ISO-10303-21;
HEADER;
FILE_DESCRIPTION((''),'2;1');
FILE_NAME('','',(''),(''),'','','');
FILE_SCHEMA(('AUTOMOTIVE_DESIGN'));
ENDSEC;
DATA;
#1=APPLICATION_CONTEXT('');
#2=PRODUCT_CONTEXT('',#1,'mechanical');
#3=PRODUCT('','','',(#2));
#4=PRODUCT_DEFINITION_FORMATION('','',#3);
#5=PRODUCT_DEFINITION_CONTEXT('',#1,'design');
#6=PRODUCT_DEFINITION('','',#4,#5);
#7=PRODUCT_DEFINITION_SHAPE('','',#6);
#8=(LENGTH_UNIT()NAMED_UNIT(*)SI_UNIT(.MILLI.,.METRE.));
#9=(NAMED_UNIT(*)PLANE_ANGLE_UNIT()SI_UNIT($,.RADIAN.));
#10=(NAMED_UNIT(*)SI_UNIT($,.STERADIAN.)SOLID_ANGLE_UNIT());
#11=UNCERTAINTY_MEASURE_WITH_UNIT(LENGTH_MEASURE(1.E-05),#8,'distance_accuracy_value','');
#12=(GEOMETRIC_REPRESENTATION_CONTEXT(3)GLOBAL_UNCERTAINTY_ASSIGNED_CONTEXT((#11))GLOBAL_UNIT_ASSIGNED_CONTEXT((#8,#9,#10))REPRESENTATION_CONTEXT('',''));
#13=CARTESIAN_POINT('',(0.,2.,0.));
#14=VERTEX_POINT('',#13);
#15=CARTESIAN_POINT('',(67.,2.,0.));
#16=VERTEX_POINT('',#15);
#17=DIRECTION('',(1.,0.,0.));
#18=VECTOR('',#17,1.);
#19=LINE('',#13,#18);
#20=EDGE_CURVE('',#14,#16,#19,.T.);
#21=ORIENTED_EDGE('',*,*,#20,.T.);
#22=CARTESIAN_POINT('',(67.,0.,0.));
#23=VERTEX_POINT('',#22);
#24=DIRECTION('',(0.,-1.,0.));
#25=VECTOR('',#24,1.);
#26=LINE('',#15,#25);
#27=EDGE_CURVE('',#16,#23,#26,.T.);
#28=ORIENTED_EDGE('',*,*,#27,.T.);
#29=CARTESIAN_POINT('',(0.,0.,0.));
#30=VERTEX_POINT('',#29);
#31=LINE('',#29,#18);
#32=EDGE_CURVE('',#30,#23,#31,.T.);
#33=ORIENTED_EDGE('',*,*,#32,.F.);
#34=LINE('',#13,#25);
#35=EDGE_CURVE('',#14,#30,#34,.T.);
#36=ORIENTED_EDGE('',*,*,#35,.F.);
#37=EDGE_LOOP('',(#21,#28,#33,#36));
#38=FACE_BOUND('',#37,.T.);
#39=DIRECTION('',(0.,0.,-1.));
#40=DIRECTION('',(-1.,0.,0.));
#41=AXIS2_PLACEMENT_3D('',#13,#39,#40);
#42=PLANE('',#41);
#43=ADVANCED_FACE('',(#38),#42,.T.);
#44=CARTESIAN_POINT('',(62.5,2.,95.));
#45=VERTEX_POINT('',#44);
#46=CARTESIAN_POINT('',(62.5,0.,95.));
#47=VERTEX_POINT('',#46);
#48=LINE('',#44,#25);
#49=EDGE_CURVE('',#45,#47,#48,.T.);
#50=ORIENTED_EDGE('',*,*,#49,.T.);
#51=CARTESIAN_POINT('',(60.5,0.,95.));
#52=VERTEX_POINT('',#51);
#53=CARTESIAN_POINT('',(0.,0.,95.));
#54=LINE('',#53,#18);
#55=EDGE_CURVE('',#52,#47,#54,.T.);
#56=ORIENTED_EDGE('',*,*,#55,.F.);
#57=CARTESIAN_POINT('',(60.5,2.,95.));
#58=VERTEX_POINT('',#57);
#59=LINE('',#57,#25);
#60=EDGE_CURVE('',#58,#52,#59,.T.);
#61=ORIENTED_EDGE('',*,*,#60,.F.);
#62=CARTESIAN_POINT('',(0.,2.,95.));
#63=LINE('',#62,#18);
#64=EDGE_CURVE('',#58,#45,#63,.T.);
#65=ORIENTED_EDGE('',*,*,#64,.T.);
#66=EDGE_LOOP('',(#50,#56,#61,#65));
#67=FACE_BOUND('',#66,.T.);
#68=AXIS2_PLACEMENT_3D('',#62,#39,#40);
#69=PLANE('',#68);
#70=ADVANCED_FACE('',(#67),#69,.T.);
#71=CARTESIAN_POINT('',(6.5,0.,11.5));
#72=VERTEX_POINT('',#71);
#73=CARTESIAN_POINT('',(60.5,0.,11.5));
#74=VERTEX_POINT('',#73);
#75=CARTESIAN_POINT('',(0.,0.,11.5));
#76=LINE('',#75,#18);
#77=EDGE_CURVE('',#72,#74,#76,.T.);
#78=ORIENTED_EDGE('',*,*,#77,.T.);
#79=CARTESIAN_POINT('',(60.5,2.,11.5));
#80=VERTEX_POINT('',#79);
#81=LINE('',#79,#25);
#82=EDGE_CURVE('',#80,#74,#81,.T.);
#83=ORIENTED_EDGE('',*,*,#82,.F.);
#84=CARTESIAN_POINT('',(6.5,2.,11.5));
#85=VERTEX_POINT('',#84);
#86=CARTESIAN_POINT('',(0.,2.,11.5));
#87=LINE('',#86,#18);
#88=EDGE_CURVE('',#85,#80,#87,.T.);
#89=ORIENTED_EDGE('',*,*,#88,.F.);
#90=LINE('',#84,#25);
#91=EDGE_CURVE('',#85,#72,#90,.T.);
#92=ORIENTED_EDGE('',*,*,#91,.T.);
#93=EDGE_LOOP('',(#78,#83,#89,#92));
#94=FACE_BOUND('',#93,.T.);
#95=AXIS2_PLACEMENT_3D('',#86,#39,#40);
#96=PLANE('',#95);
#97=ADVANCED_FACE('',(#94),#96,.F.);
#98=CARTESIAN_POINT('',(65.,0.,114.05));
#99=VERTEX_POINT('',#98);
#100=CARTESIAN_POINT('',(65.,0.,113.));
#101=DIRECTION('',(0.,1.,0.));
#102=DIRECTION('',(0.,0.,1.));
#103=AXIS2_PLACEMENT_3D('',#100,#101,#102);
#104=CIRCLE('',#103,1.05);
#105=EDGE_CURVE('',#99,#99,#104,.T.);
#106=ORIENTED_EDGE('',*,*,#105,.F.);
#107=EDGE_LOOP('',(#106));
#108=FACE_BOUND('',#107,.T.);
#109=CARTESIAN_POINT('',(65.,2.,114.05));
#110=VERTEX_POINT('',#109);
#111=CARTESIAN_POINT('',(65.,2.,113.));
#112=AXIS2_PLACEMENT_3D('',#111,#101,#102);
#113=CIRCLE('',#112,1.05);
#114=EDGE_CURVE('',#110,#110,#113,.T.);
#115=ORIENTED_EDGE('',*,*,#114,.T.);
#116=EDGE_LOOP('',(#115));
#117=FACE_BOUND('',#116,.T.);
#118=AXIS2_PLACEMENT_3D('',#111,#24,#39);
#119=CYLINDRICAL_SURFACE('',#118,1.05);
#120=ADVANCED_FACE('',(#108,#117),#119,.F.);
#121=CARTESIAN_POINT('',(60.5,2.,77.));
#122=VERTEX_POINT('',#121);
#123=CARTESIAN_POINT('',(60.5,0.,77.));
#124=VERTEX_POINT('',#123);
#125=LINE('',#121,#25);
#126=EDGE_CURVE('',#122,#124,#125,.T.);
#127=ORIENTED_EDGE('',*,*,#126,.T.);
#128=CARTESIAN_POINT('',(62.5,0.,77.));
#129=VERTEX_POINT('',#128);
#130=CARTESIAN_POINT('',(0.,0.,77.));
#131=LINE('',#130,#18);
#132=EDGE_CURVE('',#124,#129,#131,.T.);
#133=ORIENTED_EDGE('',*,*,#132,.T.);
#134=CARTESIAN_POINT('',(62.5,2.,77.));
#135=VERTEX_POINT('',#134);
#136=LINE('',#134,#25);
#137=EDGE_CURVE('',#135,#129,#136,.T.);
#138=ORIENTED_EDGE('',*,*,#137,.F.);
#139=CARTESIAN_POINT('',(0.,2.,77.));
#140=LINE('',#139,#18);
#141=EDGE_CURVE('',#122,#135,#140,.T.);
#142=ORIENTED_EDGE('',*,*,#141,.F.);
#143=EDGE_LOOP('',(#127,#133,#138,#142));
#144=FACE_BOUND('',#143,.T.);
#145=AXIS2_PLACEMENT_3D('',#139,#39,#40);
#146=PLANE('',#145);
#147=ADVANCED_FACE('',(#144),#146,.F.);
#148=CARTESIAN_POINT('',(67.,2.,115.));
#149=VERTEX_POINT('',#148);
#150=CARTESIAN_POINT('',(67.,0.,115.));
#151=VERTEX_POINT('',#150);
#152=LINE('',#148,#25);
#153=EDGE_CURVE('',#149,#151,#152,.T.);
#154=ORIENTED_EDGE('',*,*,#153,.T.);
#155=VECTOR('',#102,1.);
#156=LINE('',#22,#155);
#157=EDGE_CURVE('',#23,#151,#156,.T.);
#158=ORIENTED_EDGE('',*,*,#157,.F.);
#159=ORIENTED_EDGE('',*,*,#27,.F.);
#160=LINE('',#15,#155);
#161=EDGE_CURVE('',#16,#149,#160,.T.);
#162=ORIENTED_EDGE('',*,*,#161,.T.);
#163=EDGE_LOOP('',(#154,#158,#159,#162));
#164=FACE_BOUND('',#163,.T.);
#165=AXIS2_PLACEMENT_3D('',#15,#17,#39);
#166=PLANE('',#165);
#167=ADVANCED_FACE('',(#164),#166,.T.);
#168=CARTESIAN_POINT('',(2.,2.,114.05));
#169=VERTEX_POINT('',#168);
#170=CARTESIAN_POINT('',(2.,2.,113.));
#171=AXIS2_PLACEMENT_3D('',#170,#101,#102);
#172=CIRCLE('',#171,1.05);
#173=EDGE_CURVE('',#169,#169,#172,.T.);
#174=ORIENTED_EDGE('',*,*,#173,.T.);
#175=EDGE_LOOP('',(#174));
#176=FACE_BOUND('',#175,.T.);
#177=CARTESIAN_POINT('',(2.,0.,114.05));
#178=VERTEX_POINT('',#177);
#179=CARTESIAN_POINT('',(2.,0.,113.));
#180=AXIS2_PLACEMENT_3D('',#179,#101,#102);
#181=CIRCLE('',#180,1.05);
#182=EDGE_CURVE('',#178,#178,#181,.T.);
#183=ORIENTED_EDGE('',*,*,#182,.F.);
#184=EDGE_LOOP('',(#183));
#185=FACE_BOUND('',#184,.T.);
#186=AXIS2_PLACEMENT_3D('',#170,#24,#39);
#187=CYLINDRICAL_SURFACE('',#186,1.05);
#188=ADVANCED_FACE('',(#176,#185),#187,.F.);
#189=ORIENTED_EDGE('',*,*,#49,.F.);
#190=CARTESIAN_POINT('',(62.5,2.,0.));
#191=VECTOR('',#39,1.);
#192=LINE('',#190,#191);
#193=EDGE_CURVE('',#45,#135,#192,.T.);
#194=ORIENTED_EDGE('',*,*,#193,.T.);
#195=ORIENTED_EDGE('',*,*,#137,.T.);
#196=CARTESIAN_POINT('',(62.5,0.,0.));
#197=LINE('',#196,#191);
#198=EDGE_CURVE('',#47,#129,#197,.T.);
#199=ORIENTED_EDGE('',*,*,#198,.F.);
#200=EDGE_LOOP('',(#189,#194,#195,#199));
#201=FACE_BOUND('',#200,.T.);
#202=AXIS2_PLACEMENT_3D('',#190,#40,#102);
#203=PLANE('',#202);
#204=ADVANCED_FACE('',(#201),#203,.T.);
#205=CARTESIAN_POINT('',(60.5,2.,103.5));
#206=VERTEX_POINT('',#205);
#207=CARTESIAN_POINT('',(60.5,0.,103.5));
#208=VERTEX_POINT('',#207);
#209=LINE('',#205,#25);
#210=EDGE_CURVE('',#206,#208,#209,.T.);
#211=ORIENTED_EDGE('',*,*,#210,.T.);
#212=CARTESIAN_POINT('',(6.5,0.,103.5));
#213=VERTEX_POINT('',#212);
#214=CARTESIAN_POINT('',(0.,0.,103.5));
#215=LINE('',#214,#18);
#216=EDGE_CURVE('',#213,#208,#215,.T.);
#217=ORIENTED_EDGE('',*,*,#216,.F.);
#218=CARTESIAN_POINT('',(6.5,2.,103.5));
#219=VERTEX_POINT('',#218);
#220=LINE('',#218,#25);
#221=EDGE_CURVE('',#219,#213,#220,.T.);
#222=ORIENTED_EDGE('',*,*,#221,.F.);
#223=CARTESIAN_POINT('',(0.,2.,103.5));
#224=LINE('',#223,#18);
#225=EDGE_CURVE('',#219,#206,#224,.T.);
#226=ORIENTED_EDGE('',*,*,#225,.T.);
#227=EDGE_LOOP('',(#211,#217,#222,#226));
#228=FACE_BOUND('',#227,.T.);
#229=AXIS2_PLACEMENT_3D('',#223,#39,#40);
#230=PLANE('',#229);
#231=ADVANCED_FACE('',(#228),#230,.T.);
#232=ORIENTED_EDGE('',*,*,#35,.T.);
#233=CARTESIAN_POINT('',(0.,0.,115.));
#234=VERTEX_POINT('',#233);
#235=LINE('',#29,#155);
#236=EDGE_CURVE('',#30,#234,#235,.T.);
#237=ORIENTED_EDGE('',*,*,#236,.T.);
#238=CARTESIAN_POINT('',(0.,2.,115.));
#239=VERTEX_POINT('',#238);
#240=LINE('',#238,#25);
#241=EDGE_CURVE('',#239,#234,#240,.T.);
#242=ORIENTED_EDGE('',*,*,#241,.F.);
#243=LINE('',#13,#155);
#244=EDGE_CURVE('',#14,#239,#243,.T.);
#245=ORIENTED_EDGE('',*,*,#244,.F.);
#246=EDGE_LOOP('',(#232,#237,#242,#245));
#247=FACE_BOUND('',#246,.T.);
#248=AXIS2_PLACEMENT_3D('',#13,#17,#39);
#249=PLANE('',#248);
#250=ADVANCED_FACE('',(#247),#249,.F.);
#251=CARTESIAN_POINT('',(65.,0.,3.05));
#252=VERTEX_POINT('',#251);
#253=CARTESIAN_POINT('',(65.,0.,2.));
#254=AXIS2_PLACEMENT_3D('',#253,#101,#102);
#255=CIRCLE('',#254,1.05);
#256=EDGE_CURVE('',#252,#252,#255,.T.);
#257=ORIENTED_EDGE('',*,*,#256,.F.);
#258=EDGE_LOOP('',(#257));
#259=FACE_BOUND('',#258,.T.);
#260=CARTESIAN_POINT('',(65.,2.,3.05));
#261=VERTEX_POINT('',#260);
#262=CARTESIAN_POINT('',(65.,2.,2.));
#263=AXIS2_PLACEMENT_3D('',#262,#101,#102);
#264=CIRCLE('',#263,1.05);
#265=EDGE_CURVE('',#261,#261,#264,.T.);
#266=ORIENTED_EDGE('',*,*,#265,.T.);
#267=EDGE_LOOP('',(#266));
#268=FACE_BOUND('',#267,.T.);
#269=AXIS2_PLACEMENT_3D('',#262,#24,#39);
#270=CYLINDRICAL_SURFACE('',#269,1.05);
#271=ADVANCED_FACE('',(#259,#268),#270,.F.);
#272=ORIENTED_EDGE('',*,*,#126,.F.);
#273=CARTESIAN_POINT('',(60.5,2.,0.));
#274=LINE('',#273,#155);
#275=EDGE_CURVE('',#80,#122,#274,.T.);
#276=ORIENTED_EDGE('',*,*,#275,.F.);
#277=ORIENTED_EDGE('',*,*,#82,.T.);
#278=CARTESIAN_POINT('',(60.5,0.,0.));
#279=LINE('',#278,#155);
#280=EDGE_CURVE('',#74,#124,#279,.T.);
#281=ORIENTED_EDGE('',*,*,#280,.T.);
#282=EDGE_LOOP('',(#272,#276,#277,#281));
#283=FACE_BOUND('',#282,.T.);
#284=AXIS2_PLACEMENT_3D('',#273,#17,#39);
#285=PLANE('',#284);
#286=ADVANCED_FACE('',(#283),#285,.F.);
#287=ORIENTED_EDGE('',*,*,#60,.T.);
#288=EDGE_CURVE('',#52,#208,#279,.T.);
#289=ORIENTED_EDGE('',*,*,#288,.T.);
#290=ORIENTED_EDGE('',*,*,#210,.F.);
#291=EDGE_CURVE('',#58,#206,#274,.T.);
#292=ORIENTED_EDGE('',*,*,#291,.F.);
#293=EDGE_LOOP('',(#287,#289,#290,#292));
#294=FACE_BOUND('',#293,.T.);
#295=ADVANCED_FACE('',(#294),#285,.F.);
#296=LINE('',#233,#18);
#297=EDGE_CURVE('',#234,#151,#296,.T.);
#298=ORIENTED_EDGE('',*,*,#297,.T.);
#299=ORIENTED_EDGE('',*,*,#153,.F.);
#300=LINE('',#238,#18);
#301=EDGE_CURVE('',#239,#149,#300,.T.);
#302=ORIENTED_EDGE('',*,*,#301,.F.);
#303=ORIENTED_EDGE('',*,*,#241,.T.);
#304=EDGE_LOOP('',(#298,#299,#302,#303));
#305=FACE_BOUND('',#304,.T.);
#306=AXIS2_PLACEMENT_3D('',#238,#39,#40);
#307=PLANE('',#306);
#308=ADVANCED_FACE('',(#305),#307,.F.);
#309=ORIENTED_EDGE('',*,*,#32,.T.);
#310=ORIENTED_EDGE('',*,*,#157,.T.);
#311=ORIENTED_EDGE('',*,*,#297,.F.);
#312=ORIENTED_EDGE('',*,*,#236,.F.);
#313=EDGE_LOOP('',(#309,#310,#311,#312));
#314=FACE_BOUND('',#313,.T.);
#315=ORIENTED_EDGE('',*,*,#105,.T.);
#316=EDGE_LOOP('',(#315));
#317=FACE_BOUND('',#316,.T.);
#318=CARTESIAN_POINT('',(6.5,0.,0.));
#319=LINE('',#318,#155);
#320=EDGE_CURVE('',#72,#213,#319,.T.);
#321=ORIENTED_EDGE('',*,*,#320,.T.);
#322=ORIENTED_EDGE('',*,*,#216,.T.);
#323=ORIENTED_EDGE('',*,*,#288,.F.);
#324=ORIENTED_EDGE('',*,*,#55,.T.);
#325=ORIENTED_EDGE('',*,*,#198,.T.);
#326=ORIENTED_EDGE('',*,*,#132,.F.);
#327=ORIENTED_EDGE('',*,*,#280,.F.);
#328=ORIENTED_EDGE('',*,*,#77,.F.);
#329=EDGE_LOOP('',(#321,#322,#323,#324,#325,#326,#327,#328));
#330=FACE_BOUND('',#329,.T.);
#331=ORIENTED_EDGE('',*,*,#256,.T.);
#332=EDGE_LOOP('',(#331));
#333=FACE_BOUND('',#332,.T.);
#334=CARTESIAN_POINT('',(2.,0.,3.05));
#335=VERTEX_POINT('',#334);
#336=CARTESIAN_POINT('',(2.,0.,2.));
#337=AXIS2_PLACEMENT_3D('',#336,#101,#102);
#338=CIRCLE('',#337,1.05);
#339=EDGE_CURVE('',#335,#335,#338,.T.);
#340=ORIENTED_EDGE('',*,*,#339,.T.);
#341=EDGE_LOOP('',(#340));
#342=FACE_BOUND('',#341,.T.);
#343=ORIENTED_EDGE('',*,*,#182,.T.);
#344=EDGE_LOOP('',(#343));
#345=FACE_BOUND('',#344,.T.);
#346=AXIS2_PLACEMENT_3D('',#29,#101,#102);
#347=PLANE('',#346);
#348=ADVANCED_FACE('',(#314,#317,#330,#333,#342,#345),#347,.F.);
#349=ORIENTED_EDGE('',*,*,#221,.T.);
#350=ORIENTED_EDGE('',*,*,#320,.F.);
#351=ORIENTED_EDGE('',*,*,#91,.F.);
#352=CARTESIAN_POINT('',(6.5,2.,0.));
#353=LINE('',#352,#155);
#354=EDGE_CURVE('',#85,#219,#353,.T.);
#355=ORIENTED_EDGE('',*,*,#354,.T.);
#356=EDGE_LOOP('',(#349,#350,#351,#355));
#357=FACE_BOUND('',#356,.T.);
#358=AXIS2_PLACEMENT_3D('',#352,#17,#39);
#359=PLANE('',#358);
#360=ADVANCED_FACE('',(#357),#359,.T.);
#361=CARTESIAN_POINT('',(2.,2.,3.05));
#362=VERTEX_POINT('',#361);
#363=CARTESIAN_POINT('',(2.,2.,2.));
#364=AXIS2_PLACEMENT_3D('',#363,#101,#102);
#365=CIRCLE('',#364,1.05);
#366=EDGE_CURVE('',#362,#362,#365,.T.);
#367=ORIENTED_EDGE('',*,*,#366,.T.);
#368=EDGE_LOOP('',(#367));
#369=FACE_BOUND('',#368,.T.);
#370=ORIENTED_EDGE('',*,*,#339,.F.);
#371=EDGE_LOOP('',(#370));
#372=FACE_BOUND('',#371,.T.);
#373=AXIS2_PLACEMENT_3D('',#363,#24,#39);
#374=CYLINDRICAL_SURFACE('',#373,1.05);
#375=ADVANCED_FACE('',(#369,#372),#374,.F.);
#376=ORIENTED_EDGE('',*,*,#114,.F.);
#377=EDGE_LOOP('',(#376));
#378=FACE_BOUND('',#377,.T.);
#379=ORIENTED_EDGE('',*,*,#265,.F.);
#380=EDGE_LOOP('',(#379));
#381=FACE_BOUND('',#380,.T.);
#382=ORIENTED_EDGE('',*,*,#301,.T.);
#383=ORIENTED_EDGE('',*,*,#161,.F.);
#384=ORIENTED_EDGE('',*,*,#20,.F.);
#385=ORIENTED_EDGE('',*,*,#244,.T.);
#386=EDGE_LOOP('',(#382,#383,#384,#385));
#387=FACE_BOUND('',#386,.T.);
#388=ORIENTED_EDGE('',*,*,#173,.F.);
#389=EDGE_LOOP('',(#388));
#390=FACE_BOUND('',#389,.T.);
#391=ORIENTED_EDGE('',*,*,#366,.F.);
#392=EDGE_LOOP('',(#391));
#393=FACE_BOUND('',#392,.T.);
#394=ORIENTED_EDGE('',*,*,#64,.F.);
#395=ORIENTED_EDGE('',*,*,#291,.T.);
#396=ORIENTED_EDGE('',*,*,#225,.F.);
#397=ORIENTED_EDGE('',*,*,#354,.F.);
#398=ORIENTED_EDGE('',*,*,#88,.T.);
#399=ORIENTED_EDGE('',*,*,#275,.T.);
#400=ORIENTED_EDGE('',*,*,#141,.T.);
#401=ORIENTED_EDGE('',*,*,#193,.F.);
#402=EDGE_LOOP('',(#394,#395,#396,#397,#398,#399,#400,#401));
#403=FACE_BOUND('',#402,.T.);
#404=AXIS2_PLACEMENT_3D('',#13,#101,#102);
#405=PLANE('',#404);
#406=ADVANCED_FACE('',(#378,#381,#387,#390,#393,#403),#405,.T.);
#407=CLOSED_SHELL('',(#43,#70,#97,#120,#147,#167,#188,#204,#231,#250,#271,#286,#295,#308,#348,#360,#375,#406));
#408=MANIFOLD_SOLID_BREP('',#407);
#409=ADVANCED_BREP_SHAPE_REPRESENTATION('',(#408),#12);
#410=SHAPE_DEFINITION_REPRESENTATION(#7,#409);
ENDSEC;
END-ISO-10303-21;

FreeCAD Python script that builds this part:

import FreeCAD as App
import Part
import Sketcher

V = App.Vector
Q = App.Units.Quantity


def add_polygon(sketch, points):
    """Adds a closed chain of lines whose ends are joined by coincident constraints."""
    first, n = sketch.GeometryCount, len(points)
    for a, b in zip(points, points[1:] + points[:1]):
        sketch.addGeometry(Part.LineSegment(App.Vector(*a, 0), App.Vector(*b, 0)), False)
    for i in range(n):
        sketch.addConstraint(Sketcher.Constraint("Coincident", first + i, 2, first + (i + 1) % n, 1))

doc = App.newDocument("Part")
body = doc.addObject("PartDesign::Body", "Body")

sketch1 = body.newObject("Sketcher::SketchObject", "Sketch")
sketch1.AttachmentSupport = (doc.getObject("XZ_Plane"), [""])
sketch1.MapMode = "FlatFace"
add_polygon(sketch1, [(0, 0), (0, 115), (67, 115), (67, 0)])
sketch1.addGeometry(Part.Circle(V(2, 113, 0), V(0, 0, 1), 1.1), False)
sketch1.addGeometry(Part.Circle(V(65, 113, 0), V(0, 0, 1), 1.1), False)
sketch1.addGeometry(Part.Circle(V(2, 2, 0), V(0, 0, 1), 1.1), False)
add_polygon(sketch1, [(60.5, 103.5), (6.5, 103.5), (6.5, 11.5), (60.5, 11.5), (60.5, 77), (62.5, 77), (62.5, 95), (60.5, 95)])
sketch1.addGeometry(Part.Circle(V(65, 2, 0), V(0, 0, 1), 1.1), False)
sketch1.addConstraint([
    Sketcher.Constraint("Vertical", 0),
    Sketcher.Constraint("Horizontal", 1),
    Sketcher.Constraint("Vertical", 2),
    Sketcher.Constraint("Horizontal", 3),
    Sketcher.Constraint("Horizontal", 7),
    Sketcher.Constraint("Vertical", 8),
    Sketcher.Constraint("Horizontal", 9),
    Sketcher.Constraint("Vertical", 10),
    Sketcher.Constraint("Horizontal", 11),
    Sketcher.Constraint("Vertical", 12),
    Sketcher.Constraint("Horizontal", 13),
    Sketcher.Constraint("Vertical", 14),
    Sketcher.Constraint("Coincident", 3, 2, -1, 1),
    Sketcher.Constraint("Equal", 4, 5),
    Sketcher.Constraint("Equal", 5, 6),
    Sketcher.Constraint("Equal", 6, 15),
    Sketcher.Constraint("Horizontal", 4, 3, 5, 3),
    Sketcher.Constraint("Horizontal", 6, 3, 15, 3),
    Sketcher.Constraint("Vertical", 4, 3, 6, 3),
    Sketcher.Constraint("Vertical", 5, 3, 15, 3),
    Sketcher.Constraint("Vertical", 10, 2, 13, 2),
    Sketcher.Constraint("Diameter", 4, Q("2.1 mm")),
    Sketcher.Constraint("DistanceX", 1, 1, 1, 2, Q("67 mm")),
    Sketcher.Constraint("DistanceX", 7, 2, 7, 1, Q("54 mm")),
    Sketcher.Constraint("DistanceX", 11, 1, 11, 2, Q("2 mm")),
    Sketcher.Constraint("DistanceY", 0, 1, 0, 2, Q("115 mm")),
    Sketcher.Constraint("DistanceY", 8, 2, 8, 1, Q("92 mm")),
    Sketcher.Constraint("DistanceY", 12, 1, 12, 2, Q("18 mm")),
    Sketcher.Constraint("DistanceY", 10, 1, 10, 2, Q("65.5 mm")),
    Sketcher.Constraint("DistanceX", -1, 1, 4, 3, Q("2 mm")),
    Sketcher.Constraint("DistanceY", -1, 1, 4, 3, Q("113 mm")),
    Sketcher.Constraint("DistanceX", -1, 1, 5, 3, Q("65 mm")),
    Sketcher.Constraint("DistanceY", -1, 1, 6, 3, Q("2 mm")),
    Sketcher.Constraint("DistanceY", -1, 1, 10, 2, Q("77 mm")),
    Sketcher.Constraint("DistanceX", -1, 1, 7, 2, Q("6.5 mm")),
])
pad1 = body.newObject("PartDesign::Pad", "Pad")
pad1.Profile = sketch1
pad1.Length = 2
pad1.Reversed = True

doc.recompute()
